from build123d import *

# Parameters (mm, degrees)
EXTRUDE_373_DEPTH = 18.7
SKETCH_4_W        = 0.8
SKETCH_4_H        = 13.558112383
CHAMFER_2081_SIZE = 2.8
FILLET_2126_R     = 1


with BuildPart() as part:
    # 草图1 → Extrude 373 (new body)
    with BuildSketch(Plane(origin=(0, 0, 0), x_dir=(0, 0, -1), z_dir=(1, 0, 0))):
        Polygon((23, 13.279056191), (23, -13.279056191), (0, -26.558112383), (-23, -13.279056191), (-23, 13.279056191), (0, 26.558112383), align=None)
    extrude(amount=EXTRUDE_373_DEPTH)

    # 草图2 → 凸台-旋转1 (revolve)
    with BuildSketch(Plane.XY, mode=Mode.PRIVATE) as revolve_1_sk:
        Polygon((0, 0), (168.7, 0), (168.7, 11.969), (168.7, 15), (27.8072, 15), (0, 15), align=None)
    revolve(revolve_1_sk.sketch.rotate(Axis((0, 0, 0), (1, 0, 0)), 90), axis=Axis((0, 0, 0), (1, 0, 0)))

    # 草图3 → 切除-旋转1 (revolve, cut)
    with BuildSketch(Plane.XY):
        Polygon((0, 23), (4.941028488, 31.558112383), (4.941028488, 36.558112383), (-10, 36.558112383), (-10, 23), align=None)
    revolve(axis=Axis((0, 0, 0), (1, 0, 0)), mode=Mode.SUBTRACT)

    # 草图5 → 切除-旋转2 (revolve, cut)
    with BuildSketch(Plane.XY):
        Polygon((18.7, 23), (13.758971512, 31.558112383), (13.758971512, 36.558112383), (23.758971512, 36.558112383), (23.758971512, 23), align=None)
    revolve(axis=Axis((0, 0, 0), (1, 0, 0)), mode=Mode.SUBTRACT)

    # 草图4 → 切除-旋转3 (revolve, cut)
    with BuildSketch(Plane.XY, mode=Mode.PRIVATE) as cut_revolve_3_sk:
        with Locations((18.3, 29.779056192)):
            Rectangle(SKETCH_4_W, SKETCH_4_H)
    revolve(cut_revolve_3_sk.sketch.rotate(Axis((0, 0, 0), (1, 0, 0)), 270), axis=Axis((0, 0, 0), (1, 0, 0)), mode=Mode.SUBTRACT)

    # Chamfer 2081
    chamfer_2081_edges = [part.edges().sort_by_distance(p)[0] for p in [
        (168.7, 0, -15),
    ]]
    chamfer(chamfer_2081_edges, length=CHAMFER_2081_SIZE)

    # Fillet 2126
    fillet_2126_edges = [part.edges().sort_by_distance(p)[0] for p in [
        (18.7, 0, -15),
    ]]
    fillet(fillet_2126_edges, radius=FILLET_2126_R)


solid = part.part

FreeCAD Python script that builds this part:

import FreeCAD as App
import Part
import Sketcher

V = App.Vector
Q = App.Units.Quantity


def edges_at(feature, points):
    """Names of the edges that pass closest to the given points."""
    edges = feature.Shape.Edges
    near = lambda p: min(range(len(edges)), key=lambda i: edges[i].distToShape(Part.Vertex(*p))[0])
    return sorted({f"Edge{near(p) + 1}" for p in points})


def add_polygon(sketch, points):
    """Adds a closed chain of lines whose ends are joined by coincident constraints."""
    first, n = sketch.GeometryCount, len(points)
    for a, b in zip(points, points[1:] + points[:1]):
        sketch.addGeometry(Part.LineSegment(App.Vector(*a, 0), App.Vector(*b, 0)), False)
    for i in range(n):
        sketch.addConstraint(Sketcher.Constraint("Coincident", first + i, 2, first + (i + 1) % n, 1))

doc = App.newDocument("Part")
body = doc.addObject("PartDesign::Body", "Body")

sketch1 = body.newObject("Sketcher::SketchObject", "Sketch")
sketch1.AttachmentSupport = (doc.getObject("YZ_Plane"), [""])
sketch1.MapMode = "FlatFace"
add_polygon(sketch1, [(-13, -23), (13, -23), (27, 0), (13, 23), (-13, 23), (-27, 0)])
sketch1.addConstraint(Sketcher.Constraint("Horizontal", 0))
sketch1.addConstraint(Sketcher.Constraint("Horizontal", 3))
sketch1.addConstraint(Sketcher.Constraint("Symmetric", 0, 2, 3, 2, -1, 1))
sketch1.addConstraint(Sketcher.Constraint("Symmetric", 1, 2, 4, 2, -1, 1))
sketch1.addConstraint(Sketcher.Constraint("PointOnObject", 1, 2, -1))
sketch1.addConstraint(Sketcher.Constraint("Parallel", 2, 5))
sketch1.addConstraint(Sketcher.Constraint("Vertical", 0, 2, 2, 2))
sketch1.addConstraint(Sketcher.Constraint("Angle", 1, Q("60 deg")))
sketch1.addConstraint(Sketcher.Constraint("DistanceY", 0, 2, -1, 1, 23.0))
sketch1.addConstraint(Sketcher.Constraint("DistanceX", 0, 1, 0, 2, 26.558112))
pad1 = body.newObject("PartDesign::Pad", "Pad")
pad1.Profile = sketch1
pad1.Length = 18.7

sketch2 = body.newObject("Sketcher::SketchObject", "Sketch001")
sketch2.AttachmentSupport = (doc.getObject("XY_Plane"), [""])
sketch2.MapMode = "FlatFace"
add_polygon(sketch2, [(0, 0), (169, 0), (169, 15), (0, 15)])
sketch2.addConstraint(Sketcher.Constraint("Horizontal", 0))
sketch2.addConstraint(Sketcher.Constraint("Vertical", 1))
sketch2.addConstraint(Sketcher.Constraint("Horizontal", 2))
sketch2.addConstraint(Sketcher.Constraint("Vertical", 3))
sketch2.addConstraint(Sketcher.Constraint("Coincident", 3, 2, -1, 1))
sketch2.addConstraint(Sketcher.Constraint("DistanceY", 1, 1, 1, 2, 15.0))
sketch2.addConstraint(Sketcher.Constraint("DistanceX", 0, 1, 0, 2, 168.7))
revolution = body.newObject("PartDesign::Revolution", "Revolution")
revolution.Profile = sketch2
revolution.ReferenceAxis = (sketch2, ["H_Axis"])
revolution.Angle = 360

sketch3 = body.newObject("Sketcher::SketchObject", "Sketch002")
sketch3.AttachmentSupport = (doc.getObject("XY_Plane"), [""])
sketch3.MapMode = "FlatFace"
add_polygon(sketch3, [(0, 23), (5, 32), (5, 37), (-10, 37), (-10, 23)])
sketch3.addConstraint(Sketcher.Constraint("Vertical", 1))
sketch3.addConstraint(Sketcher.Constraint("Horizontal", 2))
sketch3.addConstraint(Sketcher.Constraint("Vertical", 3))
sketch3.addConstraint(Sketcher.Constraint("Horizontal", 4))
sketch3.addConstraint(Sketcher.Constraint("PointOnObject", 4, 2, -2))
sketch3.addConstraint(Sketcher.Constraint("DistanceX", 4, 1, 4, 2, 10.0))
sketch3.addConstraint(Sketcher.Constraint("DistanceY", 1, 1, 1, 2, 5.0))
sketch3.addConstraint(Sketcher.Constraint("Angle", 0, Q("60 deg")))
sketch3.addConstraint(Sketcher.Constraint("DistanceY", -1, 1, 3, 2, 23.0))
sketch3.addConstraint(Sketcher.Constraint("DistanceX", 2, 2, 2, 1, 14.941028))
groove = body.newObject("PartDesign::Groove", "Groove")
groove.Profile = sketch3
groove.ReferenceAxis = (sketch3, ["H_Axis"])
groove.Angle = 360

sketch4 = body.newObject("Sketcher::SketchObject", "Sketch003")
sketch4.AttachmentSupport = (doc.getObject("XY_Plane"), [""])
sketch4.MapMode = "FlatFace"
add_polygon(sketch4, [(14, 32), (19, 23), (24, 23), (24, 37), (14, 37)])
sketch4.addConstraint(Sketcher.Constraint("Horizontal", 1))
sketch4.addConstraint(Sketcher.Constraint("Vertical", 2))
sketch4.addConstraint(Sketcher.Constraint("Horizontal", 3))
sketch4.addConstraint(Sketcher.Constraint("Vertical", 4))
sketch4.addConstraint(Sketcher.Constraint("DistanceX", 3, 2, 3, 1, 10.0))
sketch4.addConstraint(Sketcher.Constraint("DistanceY", 4, 2, 4, 1, 5.0))
sketch4.addConstraint(Sketcher.Constraint("Angle", 0, Q("-60 deg")))
sketch4.addConstraint(Sketcher.Constraint("DistanceY", -1, 1, 0, 2, 23.0))
sketch4.addConstraint(Sketcher.Constraint("DistanceX", -1, 1, 0, 2, 18.7))
sketch4.addConstraint(Sketcher.Constraint("DistanceX", 1, 1, 1, 2, 5.058972))
groove2 = body.newObject("PartDesign::Groove", "Groove001")
groove2.Profile = sketch4
groove2.ReferenceAxis = (sketch4, ["H_Axis"])
groove2.Angle = 360

sketch5 = body.newObject("Sketcher::SketchObject", "Sketch004")
sketch5.AttachmentSupport = (doc.getObject("XY_Plane"), [""])
sketch5.MapMode = "FlatFace"
add_polygon(sketch5, [(17.9, 36.6), (17.9, 23), (18.7, 23), (18.7, 36.6)])
sketch5.addConstraint(Sketcher.Constraint("Vertical", 0))
sketch5.addConstraint(Sketcher.Constraint("Horizontal", 1))
sketch5.addConstraint(Sketcher.Constraint("Vertical", 2))
sketch5.addConstraint(Sketcher.Constraint("Horizontal", 3))
sketch5.addConstraint(Sketcher.Constraint("DistanceX", 1, 1, 1, 2, 0.8))
sketch5.addConstraint(Sketcher.Constraint("DistanceY", -1, 1, 0, 2, 23.0))
sketch5.addConstraint(Sketcher.Constraint("DistanceX", -1, 1, 0, 2, 17.9))
sketch5.addConstraint(Sketcher.Constraint("DistanceY", 0, 2, 0, 1, 13.558112))
groove3 = body.newObject("PartDesign::Groove", "Groove002")
groove3.Profile = sketch5
groove3.ReferenceAxis = (sketch5, ["H_Axis"])
groove3.Angle = 360
doc.recompute()

chamfer = body.newObject("PartDesign::Chamfer", "Chamfer")
chamfer.Base = (groove3, edges_at(groove3, [(168.7, 0, -15)]))
chamfer.Size = 2.8
doc.recompute()

fillet = body.newObject("PartDesign::Fillet", "Fillet")
fillet.Base = (chamfer, edges_at(chamfer, [(18.7, 0, -15)]))
fillet.Radius = 1

doc.recompute()
